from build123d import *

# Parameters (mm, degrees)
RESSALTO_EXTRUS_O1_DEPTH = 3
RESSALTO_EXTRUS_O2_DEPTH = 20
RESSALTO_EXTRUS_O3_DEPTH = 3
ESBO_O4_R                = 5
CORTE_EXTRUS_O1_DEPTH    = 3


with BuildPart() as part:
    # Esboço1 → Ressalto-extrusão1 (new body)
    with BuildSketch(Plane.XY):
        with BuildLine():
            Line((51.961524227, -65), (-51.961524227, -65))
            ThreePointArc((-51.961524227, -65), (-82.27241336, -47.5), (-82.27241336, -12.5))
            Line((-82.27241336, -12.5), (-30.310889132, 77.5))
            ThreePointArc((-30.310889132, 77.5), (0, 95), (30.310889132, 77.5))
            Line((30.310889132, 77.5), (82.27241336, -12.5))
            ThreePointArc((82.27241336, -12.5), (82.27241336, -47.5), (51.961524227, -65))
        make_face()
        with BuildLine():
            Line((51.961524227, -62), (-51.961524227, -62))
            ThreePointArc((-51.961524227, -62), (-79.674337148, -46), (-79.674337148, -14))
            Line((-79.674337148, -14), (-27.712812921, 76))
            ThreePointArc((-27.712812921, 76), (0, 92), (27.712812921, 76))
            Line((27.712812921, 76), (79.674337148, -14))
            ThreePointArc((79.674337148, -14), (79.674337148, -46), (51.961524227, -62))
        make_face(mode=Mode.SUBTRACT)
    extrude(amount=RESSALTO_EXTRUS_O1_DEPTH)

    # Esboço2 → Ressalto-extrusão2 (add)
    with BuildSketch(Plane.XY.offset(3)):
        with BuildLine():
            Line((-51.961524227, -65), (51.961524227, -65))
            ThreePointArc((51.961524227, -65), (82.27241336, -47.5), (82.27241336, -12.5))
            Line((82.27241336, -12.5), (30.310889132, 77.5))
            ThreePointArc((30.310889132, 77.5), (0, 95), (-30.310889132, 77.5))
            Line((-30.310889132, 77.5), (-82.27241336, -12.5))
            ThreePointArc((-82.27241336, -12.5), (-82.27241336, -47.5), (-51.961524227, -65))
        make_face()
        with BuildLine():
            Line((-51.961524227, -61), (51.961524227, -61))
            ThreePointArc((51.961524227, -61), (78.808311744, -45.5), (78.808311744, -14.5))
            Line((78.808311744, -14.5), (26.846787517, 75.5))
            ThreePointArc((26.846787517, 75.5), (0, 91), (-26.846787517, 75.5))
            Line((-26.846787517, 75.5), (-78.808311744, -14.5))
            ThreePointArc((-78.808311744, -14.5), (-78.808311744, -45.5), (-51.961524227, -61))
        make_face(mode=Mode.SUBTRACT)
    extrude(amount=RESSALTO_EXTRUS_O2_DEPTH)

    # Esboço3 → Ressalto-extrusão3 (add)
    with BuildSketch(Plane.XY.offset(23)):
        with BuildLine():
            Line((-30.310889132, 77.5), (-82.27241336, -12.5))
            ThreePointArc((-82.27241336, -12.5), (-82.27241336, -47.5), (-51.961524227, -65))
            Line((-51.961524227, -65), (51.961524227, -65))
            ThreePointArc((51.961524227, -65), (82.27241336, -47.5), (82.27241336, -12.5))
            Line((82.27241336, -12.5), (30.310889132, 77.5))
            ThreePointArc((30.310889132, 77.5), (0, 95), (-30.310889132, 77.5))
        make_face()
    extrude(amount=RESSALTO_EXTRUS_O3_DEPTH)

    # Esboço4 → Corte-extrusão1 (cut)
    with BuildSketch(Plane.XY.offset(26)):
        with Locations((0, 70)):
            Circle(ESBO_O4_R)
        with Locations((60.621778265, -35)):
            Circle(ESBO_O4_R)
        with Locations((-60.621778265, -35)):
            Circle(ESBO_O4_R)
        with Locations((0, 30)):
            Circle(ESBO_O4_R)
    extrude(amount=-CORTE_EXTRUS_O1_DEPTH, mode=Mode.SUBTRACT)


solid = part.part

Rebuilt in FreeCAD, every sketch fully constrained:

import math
import FreeCAD as App
import Part
import Sketcher

V = App.Vector
Q = App.Units.Quantity

doc = App.newDocument("Part")
body = doc.addObject("PartDesign::Body", "Body")

sketch1 = body.newObject("Sketcher::SketchObject", "Sketch")
sketch1.AttachmentSupport = (doc.getObject("XY_Plane"), [""])
sketch1.MapMode = "FlatFace"
sketch1.addGeometry([
    Part.LineSegment(V(-52, -65, 0), V(52, -65, 0)),
    Part.ArcOfCircle(Part.Circle(V(52, -30, 0), V(0, 0, 1), 35), math.radians(-90), math.radians(30)),
    Part.LineSegment(V(82, -12, 0), V(30, 78, 0)),
    Part.ArcOfCircle(Part.Circle(V(0, 60, 0), V(0, 0, 1), 35), math.radians(30), math.radians(150)),
    Part.LineSegment(V(-30, 78, 0), V(-82, -12, 0)),
    Part.ArcOfCircle(Part.Circle(V(-52, -30, 0), V(0, 0, 1), 35), math.radians(150), math.radians(270)),
    Part.LineSegment(V(52, -62, 0), V(-52, -62, 0)),
    Part.ArcOfCircle(Part.Circle(V(-52, -30, 0), V(0, 0, 1), 32), math.radians(150), math.radians(270)),
    Part.LineSegment(V(-80, -14, 0), V(-28, 76, 0)),
    Part.ArcOfCircle(Part.Circle(V(0, 60, 0), V(0, 0, 1), 32), math.radians(30), math.radians(150)),
    Part.LineSegment(V(28, 76, 0), V(80, -14, 0)),
    Part.ArcOfCircle(Part.Circle(V(52, -30, 0), V(0, 0, 1), 32), math.radians(-90), math.radians(30)),
], False)
sketch1.addConstraint([
    Sketcher.Constraint("Tangent", 0, 2, 1, 1),
    Sketcher.Constraint("Tangent", 1, 2, 2, 1),
    Sketcher.Constraint("Tangent", 2, 2, 3, 1),
    Sketcher.Constraint("Tangent", 3, 2, 4, 1),
    Sketcher.Constraint("Tangent", 4, 2, 5, 1),
    Sketcher.Constraint("Tangent", 5, 2, 0, 1),
    Sketcher.Constraint("Tangent", 6, 2, 7, 2),
    Sketcher.Constraint("Tangent", 7, 1, 8, 1),
    Sketcher.Constraint("Tangent", 8, 2, 9, 2),
    Sketcher.Constraint("Tangent", 9, 1, 10, 1),
    Sketcher.Constraint("Tangent", 10, 2, 11, 2),
    Sketcher.Constraint("Tangent", 11, 1, 6, 1),
    Sketcher.Constraint("Horizontal", 0),
    Sketcher.Constraint("Horizontal", 6),
    Sketcher.Constraint("Coincident", 7, 3, 5, 3),
    Sketcher.Constraint("Coincident", 9, 3, 3, 3),
    Sketcher.Constraint("Coincident", 11, 3, 1, 3),
    Sketcher.Constraint("Equal", 1, 3),
    Sketcher.Constraint("Equal", 3, 5),
    Sketcher.Constraint("Equal", 7, 9),
    Sketcher.Constraint("Symmetric", 2, 2, 3, 2, -2),
    Sketcher.Constraint("Radius", 1, 35.0),
    Sketcher.Constraint("Radius", 7, 32.0),
    Sketcher.Constraint("Angle", 2, Q("120 deg")),
    Sketcher.Constraint("DistanceY", 1, 3, -1, 1, 30.0),
    Sketcher.Constraint("DistanceY", -1, 1, 3, 3, 60.0),
])
pad1 = body.newObject("PartDesign::Pad", "Pad")
pad1.Profile = sketch1
pad1.Length = 3

sketch2 = body.newObject("Sketcher::SketchObject", "Sketch001")
sketch2.AttachmentSupport = (doc.getObject("XY_Plane"), [""])
sketch2.MapMode = "FlatFace"
sketch2.AttachmentOffset = App.Placement(V(0, 0, 3), App.Rotation())
sketch2.addGeometry([
    Part.LineSegment(V(-52, -65, 0), V(52, -65, 0)),
    Part.ArcOfCircle(Part.Circle(V(52, -30, 0), V(0, 0, 1), 35), math.radians(-90), math.radians(30)),
    Part.LineSegment(V(82, -12, 0), V(30, 78, 0)),
    Part.ArcOfCircle(Part.Circle(V(0, 60, 0), V(0, 0, 1), 35), math.radians(30), math.radians(150)),
    Part.LineSegment(V(-30, 78, 0), V(-82, -12, 0)),
    Part.ArcOfCircle(Part.Circle(V(-52, -30, 0), V(0, 0, 1), 35), math.radians(150), math.radians(270)),
    Part.LineSegment(V(52, -61, 0), V(-52, -61, 0)),
    Part.ArcOfCircle(Part.Circle(V(-52, -30, 0), V(0, 0, 1), 31), math.radians(150), math.radians(270)),
    Part.LineSegment(V(-79, -14, 0), V(-27, 76, 0)),
    Part.ArcOfCircle(Part.Circle(V(0, 60, 0), V(0, 0, 1), 31), math.radians(30), math.radians(150)),
    Part.LineSegment(V(27, 76, 0), V(79, -14, 0)),
    Part.ArcOfCircle(Part.Circle(V(52, -30, 0), V(0, 0, 1), 31), math.radians(-90), math.radians(30)),
], False)
sketch2.addConstraint([
    Sketcher.Constraint("Tangent", 0, 2, 1, 1),
    Sketcher.Constraint("Tangent", 1, 2, 2, 1),
    Sketcher.Constraint("Tangent", 2, 2, 3, 1),
    Sketcher.Constraint("Tangent", 3, 2, 4, 1),
    Sketcher.Constraint("Tangent", 4, 2, 5, 1),
    Sketcher.Constraint("Tangent", 5, 2, 0, 1),
    Sketcher.Constraint("Tangent", 6, 2, 7, 2),
    Sketcher.Constraint("Tangent", 7, 1, 8, 1),
    Sketcher.Constraint("Tangent", 8, 2, 9, 2),
    Sketcher.Constraint("Tangent", 9, 1, 10, 1),
    Sketcher.Constraint("Tangent", 10, 2, 11, 2),
    Sketcher.Constraint("Tangent", 11, 1, 6, 1),
    Sketcher.Constraint("Horizontal", 0),
    Sketcher.Constraint("Horizontal", 6),
    Sketcher.Constraint("Coincident", 7, 3, 5, 3),
    Sketcher.Constraint("Coincident", 9, 3, 3, 3),
    Sketcher.Constraint("Coincident", 11, 3, 1, 3),
    Sketcher.Constraint("Equal", 1, 3),
    Sketcher.Constraint("Equal", 3, 5),
    Sketcher.Constraint("Equal", 7, 9),
    Sketcher.Constraint("Symmetric", 2, 2, 3, 2, -2),
    Sketcher.Constraint("Radius", 1, 35.0),
    Sketcher.Constraint("Radius", 7, 31.0),
    Sketcher.Constraint("Angle", 2, Q("120 deg")),
    Sketcher.Constraint("DistanceY", 1, 3, -1, 1, 30.0),
    Sketcher.Constraint("DistanceY", -1, 1, 3, 3, 60.0),
])
pad2 = body.newObject("PartDesign::Pad", "Pad001")
pad2.Profile = sketch2
pad2.Length = 20

sketch3 = body.newObject("Sketcher::SketchObject", "Sketch002")
sketch3.AttachmentSupport = (doc.getObject("XY_Plane"), [""])
sketch3.MapMode = "FlatFace"
sketch3.AttachmentOffset = App.Placement(V(0, 0, 23), App.Rotation())
sketch3.addGeometry([
    Part.LineSegment(V(-30, 78, 0), V(-82, -12, 0)),
    Part.ArcOfCircle(Part.Circle(V(-52, -30, 0), V(0, 0, 1), 35), math.radians(150), math.radians(270)),
    Part.LineSegment(V(-52, -65, 0), V(52, -65, 0)),
    Part.ArcOfCircle(Part.Circle(V(52, -30, 0), V(0, 0, 1), 35), math.radians(-90), math.radians(30)),
    Part.LineSegment(V(82, -12, 0), V(30, 78, 0)),
    Part.ArcOfCircle(Part.Circle(V(0, 60, 0), V(0, 0, 1), 35), math.radians(30), math.radians(150)),
], False)
sketch3.addConstraint([
    Sketcher.Constraint("Tangent", 0, 2, 1, 1),
    Sketcher.Constraint("Tangent", 1, 2, 2, 1),
    Sketcher.Constraint("Tangent", 2, 2, 3, 1),
    Sketcher.Constraint("Tangent", 3, 2, 4, 1),
    Sketcher.Constraint("Tangent", 4, 2, 5, 1),
    Sketcher.Constraint("Tangent", 5, 2, 0, 1),
    Sketcher.Constraint("Horizontal", 2),
    Sketcher.Constraint("Equal", 1, 3),
    Sketcher.Constraint("Equal", 3, 5),
    Sketcher.Constraint("Symmetric", 0, 2, 3, 2, -2),
    Sketcher.Constraint("Radius", 1, 35.0),
    Sketcher.Constraint("Angle", 0, Q("-120 deg")),
    Sketcher.Constraint("DistanceY", 1, 3, -1, 1, 30.0),
    Sketcher.Constraint("DistanceY", -1, 1, 5, 3, 60.0),
])
pad3 = body.newObject("PartDesign::Pad", "Pad002")
pad3.Profile = sketch3
pad3.Length = 3

sketch4 = body.newObject("Sketcher::SketchObject", "Sketch003")
sketch4.AttachmentSupport = (doc.getObject("XY_Plane"), [""])
sketch4.MapMode = "FlatFace"
sketch4.AttachmentOffset = App.Placement(V(0, 0, 26), App.Rotation())
sketch4.addGeometry([
    Part.Circle(V(0, 70, 0), V(0, 0, 1), 5),
    Part.Circle(V(61, -35, 0), V(0, 0, 1), 5),
    Part.Circle(V(-61, -35, 0), V(0, 0, 1), 5),
    Part.Circle(V(0, 30, 0), V(0, 0, 1), 5),
], False)
sketch4.addConstraint([
    Sketcher.Constraint("Equal", 0, 1),
    Sketcher.Constraint("Equal", 1, 2),
    Sketcher.Constraint("Equal", 2, 3),
    Sketcher.Constraint("Symmetric", 1, 3, 2, 3, -2),
    Sketcher.Constraint("PointOnObject", 0, 3, -2),
    Sketcher.Constraint("PointOnObject", 3, 3, -2),
    Sketcher.Constraint("Diameter", 0, 10.0),
    Sketcher.Constraint("DistanceY", -1, 1, 0, 3, 70.0),
    Sketcher.Constraint("DistanceY", 1, 3, -1, 1, 35.0),
    Sketcher.Constraint("DistanceY", -1, 1, 3, 3, 30.0),
    Sketcher.Constraint("DistanceX", -1, 1, 1, 3, 60.621778),
])
pocket1 = body.newObject("PartDesign::Pocket", "Pocket")
pocket1.Profile = sketch4
pocket1.Length = 3

doc.recompute()
